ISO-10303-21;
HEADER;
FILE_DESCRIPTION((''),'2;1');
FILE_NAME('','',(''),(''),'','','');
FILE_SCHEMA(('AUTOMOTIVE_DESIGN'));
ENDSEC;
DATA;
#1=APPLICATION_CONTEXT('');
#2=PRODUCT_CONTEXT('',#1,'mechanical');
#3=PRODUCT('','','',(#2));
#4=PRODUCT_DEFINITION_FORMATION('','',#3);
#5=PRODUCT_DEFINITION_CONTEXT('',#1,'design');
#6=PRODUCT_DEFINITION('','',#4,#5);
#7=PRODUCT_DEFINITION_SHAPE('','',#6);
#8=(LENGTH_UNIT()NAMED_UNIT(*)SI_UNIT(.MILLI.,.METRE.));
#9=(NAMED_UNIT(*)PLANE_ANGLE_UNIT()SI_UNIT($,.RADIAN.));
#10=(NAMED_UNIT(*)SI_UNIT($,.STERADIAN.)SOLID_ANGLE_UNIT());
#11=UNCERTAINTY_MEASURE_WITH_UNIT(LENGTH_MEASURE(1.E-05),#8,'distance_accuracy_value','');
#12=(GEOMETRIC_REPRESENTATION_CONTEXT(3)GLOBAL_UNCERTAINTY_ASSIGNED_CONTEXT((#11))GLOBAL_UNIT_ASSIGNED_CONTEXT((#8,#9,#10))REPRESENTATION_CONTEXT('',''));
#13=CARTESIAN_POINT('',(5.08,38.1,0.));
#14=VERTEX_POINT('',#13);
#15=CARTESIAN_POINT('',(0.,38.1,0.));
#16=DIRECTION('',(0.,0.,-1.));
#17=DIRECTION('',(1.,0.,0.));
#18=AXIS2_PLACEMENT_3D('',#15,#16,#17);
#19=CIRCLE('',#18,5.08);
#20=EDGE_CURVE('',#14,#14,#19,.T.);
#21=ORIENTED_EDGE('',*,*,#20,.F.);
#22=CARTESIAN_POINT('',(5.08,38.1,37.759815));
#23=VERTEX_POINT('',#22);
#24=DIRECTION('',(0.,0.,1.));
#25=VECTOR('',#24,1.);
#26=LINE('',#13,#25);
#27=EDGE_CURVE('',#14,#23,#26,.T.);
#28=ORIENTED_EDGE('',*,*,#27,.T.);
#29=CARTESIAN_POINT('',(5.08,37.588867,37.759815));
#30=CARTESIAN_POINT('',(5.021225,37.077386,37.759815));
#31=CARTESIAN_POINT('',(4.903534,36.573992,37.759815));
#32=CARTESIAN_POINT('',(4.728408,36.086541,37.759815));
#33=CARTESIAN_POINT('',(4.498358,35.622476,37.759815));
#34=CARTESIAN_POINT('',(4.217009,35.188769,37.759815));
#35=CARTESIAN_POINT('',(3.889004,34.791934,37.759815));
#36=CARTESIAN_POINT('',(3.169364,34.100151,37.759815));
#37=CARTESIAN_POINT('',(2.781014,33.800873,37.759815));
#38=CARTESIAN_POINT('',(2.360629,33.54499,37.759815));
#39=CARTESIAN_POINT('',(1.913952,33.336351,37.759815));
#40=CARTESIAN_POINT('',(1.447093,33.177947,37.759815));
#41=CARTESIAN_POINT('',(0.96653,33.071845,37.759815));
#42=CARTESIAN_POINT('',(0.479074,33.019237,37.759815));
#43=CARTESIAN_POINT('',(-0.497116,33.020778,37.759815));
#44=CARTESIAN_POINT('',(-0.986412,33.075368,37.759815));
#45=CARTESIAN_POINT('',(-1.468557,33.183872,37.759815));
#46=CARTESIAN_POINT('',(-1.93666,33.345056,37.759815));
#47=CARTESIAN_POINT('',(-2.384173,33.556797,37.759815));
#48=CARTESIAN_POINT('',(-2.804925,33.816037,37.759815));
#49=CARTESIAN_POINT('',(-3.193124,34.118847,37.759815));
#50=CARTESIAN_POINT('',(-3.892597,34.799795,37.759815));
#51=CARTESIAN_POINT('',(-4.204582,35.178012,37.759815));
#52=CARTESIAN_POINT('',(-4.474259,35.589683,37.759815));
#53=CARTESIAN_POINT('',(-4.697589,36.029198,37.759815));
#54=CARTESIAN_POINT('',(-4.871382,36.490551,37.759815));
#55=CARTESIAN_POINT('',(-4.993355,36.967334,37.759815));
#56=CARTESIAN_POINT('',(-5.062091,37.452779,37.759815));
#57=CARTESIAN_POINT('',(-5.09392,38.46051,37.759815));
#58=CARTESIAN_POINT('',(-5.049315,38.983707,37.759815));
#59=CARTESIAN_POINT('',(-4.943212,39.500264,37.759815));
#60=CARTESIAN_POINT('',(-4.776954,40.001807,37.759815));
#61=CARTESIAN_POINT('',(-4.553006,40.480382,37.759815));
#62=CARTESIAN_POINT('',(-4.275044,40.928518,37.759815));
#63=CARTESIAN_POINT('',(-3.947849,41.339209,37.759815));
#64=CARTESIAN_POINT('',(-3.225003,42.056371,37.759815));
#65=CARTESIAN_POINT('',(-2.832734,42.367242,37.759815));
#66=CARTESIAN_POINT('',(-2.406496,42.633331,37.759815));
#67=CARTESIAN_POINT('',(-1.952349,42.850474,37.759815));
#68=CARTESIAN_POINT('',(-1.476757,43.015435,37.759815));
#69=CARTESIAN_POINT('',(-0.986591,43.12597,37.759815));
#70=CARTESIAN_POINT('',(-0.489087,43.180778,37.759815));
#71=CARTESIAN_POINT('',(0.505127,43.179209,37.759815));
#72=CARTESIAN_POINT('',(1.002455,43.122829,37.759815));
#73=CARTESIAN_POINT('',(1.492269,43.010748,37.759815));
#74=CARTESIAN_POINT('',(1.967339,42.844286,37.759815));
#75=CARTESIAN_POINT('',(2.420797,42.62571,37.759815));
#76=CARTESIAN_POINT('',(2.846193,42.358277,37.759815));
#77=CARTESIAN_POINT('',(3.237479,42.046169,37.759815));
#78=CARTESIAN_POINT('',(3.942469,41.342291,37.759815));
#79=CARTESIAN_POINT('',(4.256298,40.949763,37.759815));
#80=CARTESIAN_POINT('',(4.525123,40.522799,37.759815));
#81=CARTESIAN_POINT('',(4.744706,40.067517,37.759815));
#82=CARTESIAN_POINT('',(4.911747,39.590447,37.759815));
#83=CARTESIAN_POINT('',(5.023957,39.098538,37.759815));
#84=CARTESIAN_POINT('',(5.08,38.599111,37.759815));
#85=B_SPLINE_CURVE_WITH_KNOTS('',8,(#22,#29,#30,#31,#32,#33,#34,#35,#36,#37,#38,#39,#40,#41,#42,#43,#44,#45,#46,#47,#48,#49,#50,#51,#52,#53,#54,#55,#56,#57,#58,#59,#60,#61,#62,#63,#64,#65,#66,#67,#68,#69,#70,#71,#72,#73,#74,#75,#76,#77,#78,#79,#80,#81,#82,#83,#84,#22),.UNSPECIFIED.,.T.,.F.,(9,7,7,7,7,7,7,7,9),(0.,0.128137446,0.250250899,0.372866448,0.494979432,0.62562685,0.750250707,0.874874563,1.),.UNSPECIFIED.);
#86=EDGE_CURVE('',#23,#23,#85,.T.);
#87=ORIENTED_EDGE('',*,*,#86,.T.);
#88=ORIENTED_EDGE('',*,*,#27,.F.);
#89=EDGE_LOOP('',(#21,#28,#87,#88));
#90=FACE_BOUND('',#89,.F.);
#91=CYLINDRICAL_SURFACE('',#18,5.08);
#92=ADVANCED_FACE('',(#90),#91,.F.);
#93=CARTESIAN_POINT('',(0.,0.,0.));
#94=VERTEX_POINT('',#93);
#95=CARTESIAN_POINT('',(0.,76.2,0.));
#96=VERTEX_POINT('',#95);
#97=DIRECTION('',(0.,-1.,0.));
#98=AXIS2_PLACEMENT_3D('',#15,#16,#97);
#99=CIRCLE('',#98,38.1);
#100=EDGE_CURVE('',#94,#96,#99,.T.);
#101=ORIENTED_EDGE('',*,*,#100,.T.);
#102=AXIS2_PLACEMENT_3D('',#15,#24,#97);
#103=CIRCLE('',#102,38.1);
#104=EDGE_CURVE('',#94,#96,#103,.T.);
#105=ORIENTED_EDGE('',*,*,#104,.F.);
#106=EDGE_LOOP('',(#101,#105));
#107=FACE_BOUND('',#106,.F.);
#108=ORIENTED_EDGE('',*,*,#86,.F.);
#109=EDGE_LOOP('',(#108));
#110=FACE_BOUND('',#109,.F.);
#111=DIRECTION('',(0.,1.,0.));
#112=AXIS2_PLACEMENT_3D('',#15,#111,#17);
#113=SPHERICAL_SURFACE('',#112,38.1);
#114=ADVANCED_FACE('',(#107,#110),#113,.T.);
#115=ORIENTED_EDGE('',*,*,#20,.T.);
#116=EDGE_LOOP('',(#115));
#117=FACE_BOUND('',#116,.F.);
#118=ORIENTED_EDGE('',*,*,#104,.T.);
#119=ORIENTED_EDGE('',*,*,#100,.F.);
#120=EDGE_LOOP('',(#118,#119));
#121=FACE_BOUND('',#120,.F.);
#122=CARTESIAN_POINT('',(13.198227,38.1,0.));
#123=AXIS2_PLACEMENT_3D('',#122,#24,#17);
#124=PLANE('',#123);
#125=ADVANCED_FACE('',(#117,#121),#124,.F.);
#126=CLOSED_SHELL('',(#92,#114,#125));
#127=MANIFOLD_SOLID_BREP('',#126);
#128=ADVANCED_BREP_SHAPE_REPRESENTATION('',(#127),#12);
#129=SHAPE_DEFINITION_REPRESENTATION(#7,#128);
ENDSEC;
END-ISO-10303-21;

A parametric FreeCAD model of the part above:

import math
import FreeCAD as App
import Part
import Sketcher
Q = App.Units.Quantity

doc = App.newDocument("Part")
body = doc.addObject("PartDesign::Body", "Body")

sketch1 = body.newObject("Sketcher::SketchObject", "Sketch")
sketch1.AttachmentSupport = (doc.getObject("XY_Plane"), [""])
sketch1.MapMode = "FlatFace"
sketch1.addGeometry(Part.LineSegment(App.Vector(0, 76, 0), App.Vector(0, 0, 0)), False)
sketch1.addGeometry(Part.ArcOfCircle(Part.Circle(App.Vector(0, 38, 0), App.Vector(0, 0, 1), 38), math.radians(-90), math.radians(90)), False)
sketch1.addConstraint(Sketcher.Constraint("Coincident", 0, 1, 1, 2))
sketch1.addConstraint(Sketcher.Constraint("Coincident", 1, 1, 0, 2))
sketch1.addConstraint(Sketcher.Constraint("Vertical", 0))
sketch1.addConstraint(Sketcher.Constraint("Coincident", 1, 1, -1, 1))
sketch1.addConstraint(Sketcher.Constraint("PointOnObject", 1, 3, -2))
sketch1.addConstraint(Sketcher.Constraint("Radius", 1, Q("1.5 in")))
revolution = body.newObject("PartDesign::Revolution", "Revolution")
revolution.Profile = sketch1
revolution.ReferenceAxis = (sketch1, ["V_Axis"])
revolution.Angle = 180
revolution.Reversed = True

sketch2 = body.newObject("Sketcher::SketchObject", "Sketch001")
sketch2.AttachmentSupport = (doc.getObject("XY_Plane"), [""])
sketch2.MapMode = "FlatFace"
sketch2.addGeometry(Part.Circle(App.Vector(0, 38, 0), App.Vector(0, 0, 1), 5), False)
sketch2.addConstraint(Sketcher.Constraint("PointOnObject", 0, 3, -2))
sketch2.addConstraint(Sketcher.Constraint("Diameter", 0, Q("0.4 in")))
sketch2.addConstraint(Sketcher.Constraint("DistanceY", -1, 1, 0, 3, Q("1.5 in")))
pocket1 = body.newObject("PartDesign::Pocket", "Pocket")
pocket1.Profile = sketch2
pocket1.Length = Q("1.5 in")
pocket1.Reversed = True

doc.recompute()
